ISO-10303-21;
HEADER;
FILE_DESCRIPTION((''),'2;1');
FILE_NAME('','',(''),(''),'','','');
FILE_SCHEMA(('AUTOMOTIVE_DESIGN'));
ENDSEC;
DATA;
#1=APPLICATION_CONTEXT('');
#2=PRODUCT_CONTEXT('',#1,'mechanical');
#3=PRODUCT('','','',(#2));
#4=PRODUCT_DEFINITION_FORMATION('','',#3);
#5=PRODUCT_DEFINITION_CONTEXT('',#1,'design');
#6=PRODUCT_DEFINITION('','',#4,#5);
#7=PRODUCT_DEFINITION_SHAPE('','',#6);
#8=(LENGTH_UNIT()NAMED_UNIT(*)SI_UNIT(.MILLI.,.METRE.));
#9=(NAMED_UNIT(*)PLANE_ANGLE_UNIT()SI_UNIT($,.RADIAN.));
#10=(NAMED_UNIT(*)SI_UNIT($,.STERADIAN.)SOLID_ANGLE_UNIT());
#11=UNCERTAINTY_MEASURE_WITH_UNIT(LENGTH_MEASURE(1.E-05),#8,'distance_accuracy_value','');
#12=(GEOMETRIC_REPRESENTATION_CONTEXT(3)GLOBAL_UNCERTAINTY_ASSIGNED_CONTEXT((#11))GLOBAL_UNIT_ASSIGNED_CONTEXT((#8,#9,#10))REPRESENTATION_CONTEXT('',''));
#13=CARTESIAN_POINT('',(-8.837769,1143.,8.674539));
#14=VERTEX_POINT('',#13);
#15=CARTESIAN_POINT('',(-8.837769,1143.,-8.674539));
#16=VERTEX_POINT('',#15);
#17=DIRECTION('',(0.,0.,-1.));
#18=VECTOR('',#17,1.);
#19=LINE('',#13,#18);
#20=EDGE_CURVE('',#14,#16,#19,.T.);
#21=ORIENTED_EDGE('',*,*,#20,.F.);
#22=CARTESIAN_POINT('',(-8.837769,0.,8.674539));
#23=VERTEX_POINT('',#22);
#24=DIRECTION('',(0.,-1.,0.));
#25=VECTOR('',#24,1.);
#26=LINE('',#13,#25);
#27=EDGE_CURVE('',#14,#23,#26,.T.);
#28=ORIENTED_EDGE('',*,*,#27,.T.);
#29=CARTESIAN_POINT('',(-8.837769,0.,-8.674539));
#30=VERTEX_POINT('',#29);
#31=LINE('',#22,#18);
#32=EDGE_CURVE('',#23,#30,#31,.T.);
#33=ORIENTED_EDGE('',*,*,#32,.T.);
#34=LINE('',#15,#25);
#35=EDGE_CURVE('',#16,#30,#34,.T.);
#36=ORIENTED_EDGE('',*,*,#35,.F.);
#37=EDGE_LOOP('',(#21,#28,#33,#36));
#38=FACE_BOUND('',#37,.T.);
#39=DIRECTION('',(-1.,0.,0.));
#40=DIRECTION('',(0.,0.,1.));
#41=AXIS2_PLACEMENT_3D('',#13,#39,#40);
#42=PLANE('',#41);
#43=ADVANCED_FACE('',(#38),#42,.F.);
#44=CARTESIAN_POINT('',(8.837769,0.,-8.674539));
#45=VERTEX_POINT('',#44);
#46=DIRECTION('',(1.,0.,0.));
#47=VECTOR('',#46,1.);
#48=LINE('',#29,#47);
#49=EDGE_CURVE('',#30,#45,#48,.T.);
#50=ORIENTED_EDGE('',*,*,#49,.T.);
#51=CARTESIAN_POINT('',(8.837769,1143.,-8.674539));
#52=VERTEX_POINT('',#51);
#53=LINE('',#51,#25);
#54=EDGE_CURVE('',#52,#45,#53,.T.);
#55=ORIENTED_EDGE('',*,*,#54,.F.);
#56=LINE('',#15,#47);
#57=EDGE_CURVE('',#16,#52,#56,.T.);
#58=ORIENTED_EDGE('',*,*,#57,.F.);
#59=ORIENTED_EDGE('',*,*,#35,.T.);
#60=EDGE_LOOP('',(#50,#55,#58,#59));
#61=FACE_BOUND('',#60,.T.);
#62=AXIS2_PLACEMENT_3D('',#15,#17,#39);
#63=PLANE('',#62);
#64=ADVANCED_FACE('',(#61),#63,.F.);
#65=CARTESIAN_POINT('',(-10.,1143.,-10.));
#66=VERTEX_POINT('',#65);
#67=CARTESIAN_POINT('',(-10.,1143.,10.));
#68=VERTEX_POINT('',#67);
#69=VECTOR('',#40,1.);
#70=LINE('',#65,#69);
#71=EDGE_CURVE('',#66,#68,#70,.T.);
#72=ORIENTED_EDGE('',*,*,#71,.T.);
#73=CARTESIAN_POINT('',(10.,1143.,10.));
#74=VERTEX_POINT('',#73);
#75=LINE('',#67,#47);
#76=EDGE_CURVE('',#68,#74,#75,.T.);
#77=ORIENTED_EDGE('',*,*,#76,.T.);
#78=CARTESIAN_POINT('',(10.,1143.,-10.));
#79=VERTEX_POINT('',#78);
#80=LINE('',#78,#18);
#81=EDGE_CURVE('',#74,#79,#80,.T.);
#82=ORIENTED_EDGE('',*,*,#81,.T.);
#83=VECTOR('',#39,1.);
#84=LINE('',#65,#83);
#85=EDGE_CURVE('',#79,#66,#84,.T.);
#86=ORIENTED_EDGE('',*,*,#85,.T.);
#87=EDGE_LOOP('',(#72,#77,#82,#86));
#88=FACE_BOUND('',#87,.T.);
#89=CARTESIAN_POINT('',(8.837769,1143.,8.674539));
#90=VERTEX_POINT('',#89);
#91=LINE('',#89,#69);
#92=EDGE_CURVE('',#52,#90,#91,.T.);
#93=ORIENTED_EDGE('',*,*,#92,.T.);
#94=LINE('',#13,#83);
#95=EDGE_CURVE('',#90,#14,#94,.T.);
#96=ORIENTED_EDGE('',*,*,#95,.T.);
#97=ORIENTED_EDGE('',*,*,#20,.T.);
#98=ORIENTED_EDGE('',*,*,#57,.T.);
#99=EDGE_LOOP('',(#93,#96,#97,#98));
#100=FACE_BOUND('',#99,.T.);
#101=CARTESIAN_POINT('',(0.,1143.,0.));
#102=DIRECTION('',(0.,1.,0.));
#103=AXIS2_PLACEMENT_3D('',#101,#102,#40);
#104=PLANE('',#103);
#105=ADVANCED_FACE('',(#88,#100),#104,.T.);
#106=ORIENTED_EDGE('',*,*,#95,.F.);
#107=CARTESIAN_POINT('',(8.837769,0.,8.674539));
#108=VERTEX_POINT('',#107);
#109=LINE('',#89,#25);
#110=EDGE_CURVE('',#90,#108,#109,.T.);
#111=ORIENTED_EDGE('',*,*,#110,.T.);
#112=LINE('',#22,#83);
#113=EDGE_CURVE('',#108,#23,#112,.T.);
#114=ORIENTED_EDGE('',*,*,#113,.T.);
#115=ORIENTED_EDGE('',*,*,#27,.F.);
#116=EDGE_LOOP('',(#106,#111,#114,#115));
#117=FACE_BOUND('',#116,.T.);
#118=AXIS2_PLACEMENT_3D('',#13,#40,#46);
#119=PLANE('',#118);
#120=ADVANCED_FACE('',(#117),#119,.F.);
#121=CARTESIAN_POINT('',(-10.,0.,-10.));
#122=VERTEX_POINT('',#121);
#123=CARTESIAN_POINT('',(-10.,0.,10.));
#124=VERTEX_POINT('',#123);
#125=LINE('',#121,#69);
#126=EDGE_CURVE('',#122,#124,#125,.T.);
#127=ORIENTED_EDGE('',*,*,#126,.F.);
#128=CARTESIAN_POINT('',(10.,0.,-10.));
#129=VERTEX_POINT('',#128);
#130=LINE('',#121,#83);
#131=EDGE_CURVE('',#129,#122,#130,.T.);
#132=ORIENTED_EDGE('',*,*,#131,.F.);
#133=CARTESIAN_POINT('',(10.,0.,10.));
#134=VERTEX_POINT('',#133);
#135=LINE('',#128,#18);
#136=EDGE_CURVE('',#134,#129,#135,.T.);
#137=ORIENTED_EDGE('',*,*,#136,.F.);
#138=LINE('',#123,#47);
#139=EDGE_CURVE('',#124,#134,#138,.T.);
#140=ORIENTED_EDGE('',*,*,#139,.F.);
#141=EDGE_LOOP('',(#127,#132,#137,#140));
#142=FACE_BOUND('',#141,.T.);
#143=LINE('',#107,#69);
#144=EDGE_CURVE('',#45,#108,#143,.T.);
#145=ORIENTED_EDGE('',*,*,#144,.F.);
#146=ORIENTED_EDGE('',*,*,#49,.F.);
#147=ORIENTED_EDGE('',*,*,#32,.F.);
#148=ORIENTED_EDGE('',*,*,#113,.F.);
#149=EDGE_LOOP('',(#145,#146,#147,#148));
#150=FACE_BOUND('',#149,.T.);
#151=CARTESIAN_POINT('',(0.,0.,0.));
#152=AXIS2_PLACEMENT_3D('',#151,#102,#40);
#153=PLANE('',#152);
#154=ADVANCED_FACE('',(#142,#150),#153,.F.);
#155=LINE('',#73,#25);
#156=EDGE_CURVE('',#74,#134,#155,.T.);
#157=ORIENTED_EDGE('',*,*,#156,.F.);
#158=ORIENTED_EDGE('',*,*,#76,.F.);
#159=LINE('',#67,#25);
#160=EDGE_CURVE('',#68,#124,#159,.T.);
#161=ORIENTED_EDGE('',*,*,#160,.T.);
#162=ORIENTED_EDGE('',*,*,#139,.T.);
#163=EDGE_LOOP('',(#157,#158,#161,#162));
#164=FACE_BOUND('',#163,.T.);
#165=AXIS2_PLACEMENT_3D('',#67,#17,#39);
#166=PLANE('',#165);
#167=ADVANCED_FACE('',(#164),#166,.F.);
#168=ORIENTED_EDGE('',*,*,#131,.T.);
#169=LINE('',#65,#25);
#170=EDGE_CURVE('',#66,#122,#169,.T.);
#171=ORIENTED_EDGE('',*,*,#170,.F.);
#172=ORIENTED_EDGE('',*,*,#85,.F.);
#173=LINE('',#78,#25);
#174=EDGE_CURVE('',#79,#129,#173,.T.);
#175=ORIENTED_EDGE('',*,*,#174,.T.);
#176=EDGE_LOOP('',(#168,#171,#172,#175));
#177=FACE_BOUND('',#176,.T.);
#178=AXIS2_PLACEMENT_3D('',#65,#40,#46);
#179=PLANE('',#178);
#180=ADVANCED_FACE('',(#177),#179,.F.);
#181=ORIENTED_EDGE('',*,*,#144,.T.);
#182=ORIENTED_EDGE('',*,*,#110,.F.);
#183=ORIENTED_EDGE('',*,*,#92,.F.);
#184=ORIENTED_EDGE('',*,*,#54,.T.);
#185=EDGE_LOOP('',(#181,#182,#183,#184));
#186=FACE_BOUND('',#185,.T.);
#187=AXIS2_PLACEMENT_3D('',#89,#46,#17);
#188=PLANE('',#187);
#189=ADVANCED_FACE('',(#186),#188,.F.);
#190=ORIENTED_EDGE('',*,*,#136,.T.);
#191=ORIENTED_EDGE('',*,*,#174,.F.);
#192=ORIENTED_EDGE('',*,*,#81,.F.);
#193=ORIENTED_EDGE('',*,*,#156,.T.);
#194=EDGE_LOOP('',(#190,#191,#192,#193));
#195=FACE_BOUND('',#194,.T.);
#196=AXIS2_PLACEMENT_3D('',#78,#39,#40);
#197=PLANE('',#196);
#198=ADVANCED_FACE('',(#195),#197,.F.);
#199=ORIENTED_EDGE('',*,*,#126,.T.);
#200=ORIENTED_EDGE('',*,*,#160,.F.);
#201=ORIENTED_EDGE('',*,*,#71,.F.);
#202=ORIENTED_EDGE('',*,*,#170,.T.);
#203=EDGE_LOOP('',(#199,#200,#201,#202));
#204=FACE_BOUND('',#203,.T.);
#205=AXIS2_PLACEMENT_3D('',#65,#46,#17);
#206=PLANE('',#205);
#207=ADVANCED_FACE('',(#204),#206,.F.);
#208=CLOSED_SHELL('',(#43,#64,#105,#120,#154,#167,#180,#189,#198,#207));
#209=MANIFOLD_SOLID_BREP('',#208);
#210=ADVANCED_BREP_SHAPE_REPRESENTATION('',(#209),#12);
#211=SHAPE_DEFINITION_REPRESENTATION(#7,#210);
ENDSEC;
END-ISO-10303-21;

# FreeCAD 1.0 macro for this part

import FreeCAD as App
import Part
import Sketcher

doc = App.newDocument("Part")
body = doc.addObject("PartDesign::Body", "Body")

sketch1 = body.newObject("Sketcher::SketchObject", "Sketch")
sketch1.AttachmentSupport = (doc.getObject("XZ_Plane"), [""])
sketch1.MapMode = "FlatFace"
sketch1.addGeometry([
    Part.LineSegment(App.Vector(-10, -10, 0), App.Vector(-10, 10, 0)),
    Part.LineSegment(App.Vector(-10, 10, 0), App.Vector(10, 10, 0)),
    Part.LineSegment(App.Vector(10, 10, 0), App.Vector(10, -10, 0)),
    Part.LineSegment(App.Vector(10, -10, 0), App.Vector(-10, -10, 0)),
], False)
sketch1.addConstraint([
    Sketcher.Constraint("Coincident", 0, 2, 1, 1),
    Sketcher.Constraint("Coincident", 1, 2, 2, 1),
    Sketcher.Constraint("Coincident", 2, 2, 3, 1),
    Sketcher.Constraint("Coincident", 3, 2, 0, 1),
    Sketcher.Constraint("Vertical", 0),
    Sketcher.Constraint("Horizontal", 1),
    Sketcher.Constraint("Vertical", 2),
    Sketcher.Constraint("Horizontal", 3),
    Sketcher.Constraint("Symmetric", 0, 2, 2, 2, -1, 1),
    Sketcher.Constraint("Equal", 3, 0),
    Sketcher.Constraint("DistanceX", 1, 1, 1, 2, 20.0),
])
pad1 = body.newObject("PartDesign::Pad", "Pad")
pad1.Profile = sketch1
pad1.Length = 1143
pad1.Reversed = True

sketch2 = body.newObject("Sketcher::SketchObject", "Sketch001")
sketch2.AttachmentSupport = (doc.getObject("XZ_Plane"), [""])
sketch2.MapMode = "FlatFace"
sketch2.addGeometry([
    Part.LineSegment(App.Vector(-9, 9, 0), App.Vector(-9, -9, 0)),
    Part.LineSegment(App.Vector(-9, -9, 0), App.Vector(9, -9, 0)),
    Part.LineSegment(App.Vector(9, -9, 0), App.Vector(9, 9, 0)),
    Part.LineSegment(App.Vector(9, 9, 0), App.Vector(-9, 9, 0)),
], False)
sketch2.addConstraint([
    Sketcher.Constraint("Coincident", 0, 2, 1, 1),
    Sketcher.Constraint("Coincident", 1, 2, 2, 1),
    Sketcher.Constraint("Coincident", 2, 2, 3, 1),
    Sketcher.Constraint("Coincident", 3, 2, 0, 1),
    Sketcher.Constraint("Vertical", 0),
    Sketcher.Constraint("Horizontal", 1),
    Sketcher.Constraint("Vertical", 2),
    Sketcher.Constraint("Horizontal", 3),
    Sketcher.Constraint("Symmetric", 0, 2, 2, 2, -1, 1),
    Sketcher.Constraint("DistanceX", 1, 1, 1, 2, 17.675538),
    Sketcher.Constraint("DistanceY", 0, 2, 0, 1, 17.349077),
])
pocket1 = body.newObject("PartDesign::Pocket", "Pocket")
pocket1.Profile = sketch2
pocket1.Length = 1143

doc.recompute()
